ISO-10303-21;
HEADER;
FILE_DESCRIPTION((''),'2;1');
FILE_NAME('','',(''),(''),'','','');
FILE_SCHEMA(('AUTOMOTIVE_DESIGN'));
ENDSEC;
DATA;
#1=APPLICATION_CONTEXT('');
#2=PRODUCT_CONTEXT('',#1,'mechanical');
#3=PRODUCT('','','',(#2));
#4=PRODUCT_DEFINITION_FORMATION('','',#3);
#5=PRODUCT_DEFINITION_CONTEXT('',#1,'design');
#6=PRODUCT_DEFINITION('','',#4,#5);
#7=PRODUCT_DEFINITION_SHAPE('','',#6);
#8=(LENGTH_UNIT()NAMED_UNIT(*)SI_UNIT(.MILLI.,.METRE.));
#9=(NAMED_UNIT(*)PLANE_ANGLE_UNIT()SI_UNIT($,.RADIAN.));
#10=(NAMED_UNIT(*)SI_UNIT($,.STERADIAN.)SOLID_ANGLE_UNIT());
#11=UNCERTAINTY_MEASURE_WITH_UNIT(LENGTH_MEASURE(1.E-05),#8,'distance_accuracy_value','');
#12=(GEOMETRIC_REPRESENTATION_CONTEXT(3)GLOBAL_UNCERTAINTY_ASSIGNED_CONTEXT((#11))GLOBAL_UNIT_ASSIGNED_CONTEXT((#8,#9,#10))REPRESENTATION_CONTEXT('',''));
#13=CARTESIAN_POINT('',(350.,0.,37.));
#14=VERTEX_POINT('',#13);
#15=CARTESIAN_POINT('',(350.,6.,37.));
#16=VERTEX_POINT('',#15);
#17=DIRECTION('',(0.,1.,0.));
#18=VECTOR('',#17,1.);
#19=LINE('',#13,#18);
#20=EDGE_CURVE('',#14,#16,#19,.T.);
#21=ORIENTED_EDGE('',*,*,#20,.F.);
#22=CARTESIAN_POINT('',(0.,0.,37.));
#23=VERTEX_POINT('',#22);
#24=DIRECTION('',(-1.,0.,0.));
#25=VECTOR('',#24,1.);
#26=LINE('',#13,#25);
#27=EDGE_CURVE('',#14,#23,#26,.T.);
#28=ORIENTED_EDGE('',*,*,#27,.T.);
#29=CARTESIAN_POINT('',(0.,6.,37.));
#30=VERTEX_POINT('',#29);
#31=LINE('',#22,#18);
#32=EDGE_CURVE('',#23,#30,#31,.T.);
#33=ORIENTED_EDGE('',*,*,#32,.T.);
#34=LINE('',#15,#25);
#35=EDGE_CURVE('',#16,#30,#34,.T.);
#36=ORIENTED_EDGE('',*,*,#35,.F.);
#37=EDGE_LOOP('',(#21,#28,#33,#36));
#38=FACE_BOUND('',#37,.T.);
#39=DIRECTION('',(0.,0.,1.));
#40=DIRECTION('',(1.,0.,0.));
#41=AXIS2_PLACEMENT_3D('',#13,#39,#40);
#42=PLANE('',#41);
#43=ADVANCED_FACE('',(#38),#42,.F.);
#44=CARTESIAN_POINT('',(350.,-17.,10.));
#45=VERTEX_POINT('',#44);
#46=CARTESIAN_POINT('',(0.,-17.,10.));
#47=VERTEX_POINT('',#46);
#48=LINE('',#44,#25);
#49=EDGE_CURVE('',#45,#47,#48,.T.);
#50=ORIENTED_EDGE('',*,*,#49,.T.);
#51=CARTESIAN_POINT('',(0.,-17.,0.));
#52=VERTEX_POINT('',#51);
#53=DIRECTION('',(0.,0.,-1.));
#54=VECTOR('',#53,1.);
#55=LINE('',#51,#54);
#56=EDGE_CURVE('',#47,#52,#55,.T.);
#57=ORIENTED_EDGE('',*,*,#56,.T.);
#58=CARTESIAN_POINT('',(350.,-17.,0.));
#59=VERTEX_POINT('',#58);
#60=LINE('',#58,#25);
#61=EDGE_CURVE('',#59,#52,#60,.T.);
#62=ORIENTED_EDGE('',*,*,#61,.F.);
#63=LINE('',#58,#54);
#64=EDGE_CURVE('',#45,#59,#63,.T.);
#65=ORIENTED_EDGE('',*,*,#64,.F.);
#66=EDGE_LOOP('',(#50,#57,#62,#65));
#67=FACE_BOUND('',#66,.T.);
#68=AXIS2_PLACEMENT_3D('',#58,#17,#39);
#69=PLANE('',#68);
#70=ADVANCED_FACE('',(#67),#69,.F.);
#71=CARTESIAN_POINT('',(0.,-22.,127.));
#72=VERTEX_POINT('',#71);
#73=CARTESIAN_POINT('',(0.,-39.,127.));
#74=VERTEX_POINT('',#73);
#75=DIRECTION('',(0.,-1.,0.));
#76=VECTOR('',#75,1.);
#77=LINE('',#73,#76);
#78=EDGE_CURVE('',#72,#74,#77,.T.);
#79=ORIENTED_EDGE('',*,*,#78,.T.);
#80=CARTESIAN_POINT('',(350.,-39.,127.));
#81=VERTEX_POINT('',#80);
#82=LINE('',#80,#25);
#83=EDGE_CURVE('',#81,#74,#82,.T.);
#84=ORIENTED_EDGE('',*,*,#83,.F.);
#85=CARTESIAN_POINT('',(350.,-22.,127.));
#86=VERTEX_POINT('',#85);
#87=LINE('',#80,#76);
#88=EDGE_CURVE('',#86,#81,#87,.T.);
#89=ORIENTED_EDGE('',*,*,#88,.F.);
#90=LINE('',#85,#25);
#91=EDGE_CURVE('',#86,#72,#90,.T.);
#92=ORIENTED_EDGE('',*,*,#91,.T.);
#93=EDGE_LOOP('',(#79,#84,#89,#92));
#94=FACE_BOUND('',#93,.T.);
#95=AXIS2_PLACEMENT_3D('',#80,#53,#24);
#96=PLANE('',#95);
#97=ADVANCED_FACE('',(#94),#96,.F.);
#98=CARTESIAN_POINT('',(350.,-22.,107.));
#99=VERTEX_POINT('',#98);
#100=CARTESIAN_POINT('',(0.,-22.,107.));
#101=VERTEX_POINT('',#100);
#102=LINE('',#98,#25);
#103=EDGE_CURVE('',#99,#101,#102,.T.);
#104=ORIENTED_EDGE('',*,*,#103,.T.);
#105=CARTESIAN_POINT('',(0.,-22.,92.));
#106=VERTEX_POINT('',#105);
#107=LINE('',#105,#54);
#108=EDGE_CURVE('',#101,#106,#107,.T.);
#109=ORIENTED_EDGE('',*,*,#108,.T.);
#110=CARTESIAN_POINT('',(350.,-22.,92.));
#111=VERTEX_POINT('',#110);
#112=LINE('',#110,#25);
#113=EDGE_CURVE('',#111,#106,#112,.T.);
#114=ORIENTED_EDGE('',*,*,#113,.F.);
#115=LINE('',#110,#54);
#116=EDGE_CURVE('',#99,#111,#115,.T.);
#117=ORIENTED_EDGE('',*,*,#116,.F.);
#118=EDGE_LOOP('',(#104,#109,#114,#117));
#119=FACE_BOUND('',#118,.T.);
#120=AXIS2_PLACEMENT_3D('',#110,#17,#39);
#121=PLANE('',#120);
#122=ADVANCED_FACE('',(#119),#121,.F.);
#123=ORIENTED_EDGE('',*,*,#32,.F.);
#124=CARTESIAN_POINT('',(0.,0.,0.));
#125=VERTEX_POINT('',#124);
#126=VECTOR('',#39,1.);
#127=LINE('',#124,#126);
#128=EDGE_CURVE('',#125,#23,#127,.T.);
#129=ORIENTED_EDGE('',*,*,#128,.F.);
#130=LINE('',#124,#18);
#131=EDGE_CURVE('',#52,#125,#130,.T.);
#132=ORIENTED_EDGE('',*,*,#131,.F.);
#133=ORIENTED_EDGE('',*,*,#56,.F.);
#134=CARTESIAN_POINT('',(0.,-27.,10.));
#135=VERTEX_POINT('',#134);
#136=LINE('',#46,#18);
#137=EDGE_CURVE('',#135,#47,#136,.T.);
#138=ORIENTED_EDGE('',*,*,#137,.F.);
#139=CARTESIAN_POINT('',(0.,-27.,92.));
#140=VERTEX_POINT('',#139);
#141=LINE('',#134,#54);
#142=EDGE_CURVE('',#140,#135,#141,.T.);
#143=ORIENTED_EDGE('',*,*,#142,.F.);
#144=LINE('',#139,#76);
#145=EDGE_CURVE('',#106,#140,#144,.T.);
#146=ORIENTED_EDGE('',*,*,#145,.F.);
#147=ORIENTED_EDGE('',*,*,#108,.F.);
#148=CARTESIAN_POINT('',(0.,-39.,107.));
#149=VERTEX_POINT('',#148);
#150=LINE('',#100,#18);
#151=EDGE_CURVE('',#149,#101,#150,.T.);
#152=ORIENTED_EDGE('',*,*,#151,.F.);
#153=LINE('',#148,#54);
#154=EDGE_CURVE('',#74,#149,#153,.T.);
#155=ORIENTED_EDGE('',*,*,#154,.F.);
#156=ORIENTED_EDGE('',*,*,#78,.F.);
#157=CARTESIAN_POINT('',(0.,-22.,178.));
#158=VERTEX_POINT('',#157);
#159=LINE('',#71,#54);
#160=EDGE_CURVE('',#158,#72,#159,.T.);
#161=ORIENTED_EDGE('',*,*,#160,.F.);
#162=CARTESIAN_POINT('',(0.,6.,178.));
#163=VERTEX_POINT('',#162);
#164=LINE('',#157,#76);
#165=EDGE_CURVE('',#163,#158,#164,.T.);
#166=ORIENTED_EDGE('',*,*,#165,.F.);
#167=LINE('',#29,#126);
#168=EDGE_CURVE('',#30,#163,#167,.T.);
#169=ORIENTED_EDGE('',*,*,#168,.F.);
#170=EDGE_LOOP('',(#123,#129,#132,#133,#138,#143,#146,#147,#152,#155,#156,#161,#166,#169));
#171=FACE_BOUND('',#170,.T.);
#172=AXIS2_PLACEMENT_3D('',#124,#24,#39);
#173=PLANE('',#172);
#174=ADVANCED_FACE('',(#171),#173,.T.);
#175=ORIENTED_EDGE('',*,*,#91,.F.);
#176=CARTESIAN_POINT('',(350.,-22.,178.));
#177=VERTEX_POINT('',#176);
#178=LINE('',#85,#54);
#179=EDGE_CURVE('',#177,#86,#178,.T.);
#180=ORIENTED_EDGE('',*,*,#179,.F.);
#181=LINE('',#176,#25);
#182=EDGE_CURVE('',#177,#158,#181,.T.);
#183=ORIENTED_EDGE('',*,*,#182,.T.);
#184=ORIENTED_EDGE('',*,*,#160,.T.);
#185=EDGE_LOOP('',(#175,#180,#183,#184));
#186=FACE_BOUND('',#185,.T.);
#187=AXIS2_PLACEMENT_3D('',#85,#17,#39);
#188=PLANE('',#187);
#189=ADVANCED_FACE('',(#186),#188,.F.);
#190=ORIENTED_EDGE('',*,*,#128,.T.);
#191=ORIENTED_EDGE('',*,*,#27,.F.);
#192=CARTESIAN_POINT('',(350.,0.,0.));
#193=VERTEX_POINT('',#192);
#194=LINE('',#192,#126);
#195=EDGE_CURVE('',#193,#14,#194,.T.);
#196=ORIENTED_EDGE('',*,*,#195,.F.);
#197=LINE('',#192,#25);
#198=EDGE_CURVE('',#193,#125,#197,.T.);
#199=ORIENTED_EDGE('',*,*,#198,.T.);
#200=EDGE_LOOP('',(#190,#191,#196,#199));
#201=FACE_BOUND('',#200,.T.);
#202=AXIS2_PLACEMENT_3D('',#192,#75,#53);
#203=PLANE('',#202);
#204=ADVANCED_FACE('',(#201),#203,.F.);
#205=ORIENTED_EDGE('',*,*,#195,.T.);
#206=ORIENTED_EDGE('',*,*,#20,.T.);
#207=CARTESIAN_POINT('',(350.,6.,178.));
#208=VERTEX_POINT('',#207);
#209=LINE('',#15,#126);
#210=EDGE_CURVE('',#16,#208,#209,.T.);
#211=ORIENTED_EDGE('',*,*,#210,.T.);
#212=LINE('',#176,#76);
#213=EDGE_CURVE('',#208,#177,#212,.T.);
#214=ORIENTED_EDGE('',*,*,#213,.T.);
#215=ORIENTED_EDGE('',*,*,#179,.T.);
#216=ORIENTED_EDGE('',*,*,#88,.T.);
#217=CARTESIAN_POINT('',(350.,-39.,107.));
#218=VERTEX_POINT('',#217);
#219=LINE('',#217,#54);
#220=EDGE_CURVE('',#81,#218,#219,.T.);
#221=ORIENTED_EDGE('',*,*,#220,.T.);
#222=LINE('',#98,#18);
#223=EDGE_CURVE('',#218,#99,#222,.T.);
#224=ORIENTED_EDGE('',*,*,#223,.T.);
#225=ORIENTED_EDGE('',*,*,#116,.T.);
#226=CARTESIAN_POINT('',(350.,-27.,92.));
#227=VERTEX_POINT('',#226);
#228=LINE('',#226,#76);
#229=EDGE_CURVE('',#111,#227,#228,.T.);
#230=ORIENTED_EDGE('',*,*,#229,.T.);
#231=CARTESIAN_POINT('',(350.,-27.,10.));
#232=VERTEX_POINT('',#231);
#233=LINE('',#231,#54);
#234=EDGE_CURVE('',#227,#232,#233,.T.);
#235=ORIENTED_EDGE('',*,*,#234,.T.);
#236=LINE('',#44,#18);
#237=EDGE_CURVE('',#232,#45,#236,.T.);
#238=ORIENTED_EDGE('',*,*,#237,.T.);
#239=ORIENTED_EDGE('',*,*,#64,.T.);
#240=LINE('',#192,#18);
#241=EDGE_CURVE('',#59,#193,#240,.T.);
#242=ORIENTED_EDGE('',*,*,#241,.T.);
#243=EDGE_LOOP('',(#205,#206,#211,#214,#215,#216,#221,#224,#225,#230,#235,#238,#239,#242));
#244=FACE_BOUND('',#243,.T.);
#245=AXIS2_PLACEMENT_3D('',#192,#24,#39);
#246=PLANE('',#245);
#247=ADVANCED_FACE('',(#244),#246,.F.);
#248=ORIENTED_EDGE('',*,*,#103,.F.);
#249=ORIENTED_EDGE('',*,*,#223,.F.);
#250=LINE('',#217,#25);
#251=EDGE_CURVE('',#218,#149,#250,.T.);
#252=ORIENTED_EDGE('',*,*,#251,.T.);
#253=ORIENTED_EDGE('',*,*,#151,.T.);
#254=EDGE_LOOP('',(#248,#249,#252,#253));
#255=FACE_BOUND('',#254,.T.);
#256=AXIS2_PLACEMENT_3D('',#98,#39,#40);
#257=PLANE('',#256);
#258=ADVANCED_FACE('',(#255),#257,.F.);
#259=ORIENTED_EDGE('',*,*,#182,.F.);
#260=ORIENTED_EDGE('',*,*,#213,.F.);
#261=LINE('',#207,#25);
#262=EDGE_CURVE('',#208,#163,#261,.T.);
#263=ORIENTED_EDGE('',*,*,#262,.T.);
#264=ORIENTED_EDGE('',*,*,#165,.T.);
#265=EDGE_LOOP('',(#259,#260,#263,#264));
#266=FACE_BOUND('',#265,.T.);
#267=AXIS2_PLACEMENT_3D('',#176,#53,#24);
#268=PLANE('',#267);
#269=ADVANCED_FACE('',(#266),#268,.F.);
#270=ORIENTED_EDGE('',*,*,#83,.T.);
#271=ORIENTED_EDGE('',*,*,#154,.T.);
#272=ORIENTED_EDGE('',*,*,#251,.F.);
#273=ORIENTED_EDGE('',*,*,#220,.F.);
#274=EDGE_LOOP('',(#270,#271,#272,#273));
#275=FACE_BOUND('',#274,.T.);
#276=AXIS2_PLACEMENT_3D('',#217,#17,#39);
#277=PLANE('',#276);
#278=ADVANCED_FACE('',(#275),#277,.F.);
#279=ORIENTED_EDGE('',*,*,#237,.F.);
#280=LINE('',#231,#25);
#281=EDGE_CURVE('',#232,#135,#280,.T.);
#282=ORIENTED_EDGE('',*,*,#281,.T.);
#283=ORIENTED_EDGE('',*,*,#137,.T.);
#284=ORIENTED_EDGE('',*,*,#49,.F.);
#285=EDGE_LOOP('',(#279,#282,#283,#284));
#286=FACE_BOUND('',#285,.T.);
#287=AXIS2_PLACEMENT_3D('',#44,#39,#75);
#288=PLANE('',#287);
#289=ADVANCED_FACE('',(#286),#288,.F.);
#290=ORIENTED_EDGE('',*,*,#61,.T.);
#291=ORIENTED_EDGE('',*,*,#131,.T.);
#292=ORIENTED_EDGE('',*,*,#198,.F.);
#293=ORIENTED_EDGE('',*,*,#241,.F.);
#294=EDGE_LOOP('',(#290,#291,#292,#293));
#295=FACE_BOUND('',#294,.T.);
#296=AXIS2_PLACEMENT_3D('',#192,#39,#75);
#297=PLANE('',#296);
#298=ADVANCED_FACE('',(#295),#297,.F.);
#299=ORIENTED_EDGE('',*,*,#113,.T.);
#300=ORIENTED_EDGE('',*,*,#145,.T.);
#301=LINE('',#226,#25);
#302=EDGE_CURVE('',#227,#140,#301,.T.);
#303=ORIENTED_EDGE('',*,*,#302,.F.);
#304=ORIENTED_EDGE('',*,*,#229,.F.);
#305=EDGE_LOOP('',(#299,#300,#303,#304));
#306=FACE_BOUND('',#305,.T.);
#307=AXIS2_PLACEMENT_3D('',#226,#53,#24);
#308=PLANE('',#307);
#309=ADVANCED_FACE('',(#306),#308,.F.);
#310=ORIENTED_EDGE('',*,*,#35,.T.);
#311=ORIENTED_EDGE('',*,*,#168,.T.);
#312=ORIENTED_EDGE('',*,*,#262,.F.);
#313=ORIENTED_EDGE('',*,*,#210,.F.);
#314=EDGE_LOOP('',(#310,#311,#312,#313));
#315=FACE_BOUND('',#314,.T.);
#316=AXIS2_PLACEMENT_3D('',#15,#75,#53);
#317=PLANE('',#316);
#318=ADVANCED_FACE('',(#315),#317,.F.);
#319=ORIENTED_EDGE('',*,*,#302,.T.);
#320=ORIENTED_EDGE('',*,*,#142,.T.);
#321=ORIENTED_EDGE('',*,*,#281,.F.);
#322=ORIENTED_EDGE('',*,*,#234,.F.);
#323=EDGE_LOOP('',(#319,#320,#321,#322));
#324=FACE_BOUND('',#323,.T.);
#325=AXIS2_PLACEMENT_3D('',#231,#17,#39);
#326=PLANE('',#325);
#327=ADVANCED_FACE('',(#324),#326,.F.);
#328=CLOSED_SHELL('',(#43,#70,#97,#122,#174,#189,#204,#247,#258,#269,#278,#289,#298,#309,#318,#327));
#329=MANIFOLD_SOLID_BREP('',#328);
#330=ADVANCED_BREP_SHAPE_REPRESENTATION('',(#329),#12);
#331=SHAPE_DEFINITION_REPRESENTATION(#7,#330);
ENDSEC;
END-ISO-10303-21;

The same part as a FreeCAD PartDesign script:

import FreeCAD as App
import Part
import Sketcher
from FreeCAD import Vector
Q = App.Units.Quantity


def add_polygon(sketch, points):
    """Adds a closed chain of lines whose ends are joined by coincident constraints."""
    first, n = sketch.GeometryCount, len(points)
    for a, b in zip(points, points[1:] + points[:1]):
        sketch.addGeometry(Part.LineSegment(App.Vector(*a, 0), App.Vector(*b, 0)), False)
    for i in range(n):
        sketch.addConstraint(Sketcher.Constraint("Coincident", first + i, 2, first + (i + 1) % n, 1))

doc = App.newDocument("Part")
params = doc.addObject("Spreadsheet::Sheet", "Params")
for row, (alias, value) in enumerate([
    ("sketch1_width", "17 mm"),
    ("sketch1_width2", "6 mm"),
    ("sketch1_width3", "28 mm"),
    ("sketch1_width4", "5 mm"),
    ("sketch1_height", "37 mm"),
    ("pad1_length", "350 mm"),
], start=1):
    params.set(f"A{row}", alias)
    params.set(f"B{row}", "=" + value)
    params.setAlias(f"B{row}", alias)

body = doc.addObject("PartDesign::Body", "Body")

sketch1 = body.newObject("Sketcher::SketchObject", "Sketch")
sketch1.AttachmentSupport = (doc.getObject("YZ_Plane"), [""])
sketch1.MapMode = "FlatFace"
add_polygon(sketch1, [(-17, 0), (0, 0), (0, 37), (6, 37), (6, 178), (-22, 178), (-22, 127), (-39, 127), (-39, 107), (-22, 107), (-22, 92), (-27, 92), (-27, 10), (-17, 10)])
sketch1.addConstraint([
    Sketcher.Constraint("Horizontal", 0),
    Sketcher.Constraint("Vertical", 1),
    Sketcher.Constraint("Horizontal", 2),
    Sketcher.Constraint("Vertical", 3),
    Sketcher.Constraint("Horizontal", 4),
    Sketcher.Constraint("Vertical", 5),
    Sketcher.Constraint("Horizontal", 6),
    Sketcher.Constraint("Vertical", 7),
    Sketcher.Constraint("Horizontal", 8),
    Sketcher.Constraint("Vertical", 9),
    Sketcher.Constraint("Horizontal", 10),
    Sketcher.Constraint("Vertical", 11),
    Sketcher.Constraint("Horizontal", 12),
    Sketcher.Constraint("Vertical", 13),
    Sketcher.Constraint("Coincident", 0, 2, -1, 1),
    Sketcher.Constraint("Vertical", 5, 2, 8, 2),
    Sketcher.Constraint("Equal", 0, 6),
    Sketcher.Constraint("Equal", 12, 13),
    Sketcher.Constraint("DistanceX", 0, 1, 0, 2, Q("17 mm")),
    Sketcher.Constraint("DistanceX", 2, 1, 2, 2, Q("6 mm")),
    Sketcher.Constraint("DistanceX", 4, 2, 4, 1, Q("28 mm")),
    Sketcher.Constraint("DistanceX", 10, 2, 10, 1, Q("5 mm")),
    Sketcher.Constraint("DistanceY", 1, 1, 1, 2, Q("37 mm")),
    Sketcher.Constraint("DistanceY", 3, 1, 3, 2, Q("141 mm")),
    Sketcher.Constraint("DistanceY", 5, 2, 5, 1, Q("51 mm")),
    Sketcher.Constraint("DistanceY", 7, 2, 7, 1, Q("20 mm")),
    Sketcher.Constraint("DistanceY", 9, 2, 9, 1, Q("15 mm")),
])
sketch1.setExpression("Constraints[32]", "Params.sketch1_width")
sketch1.setExpression("Constraints[33]", "Params.sketch1_width2")
sketch1.setExpression("Constraints[34]", "Params.sketch1_width3")
sketch1.setExpression("Constraints[35]", "Params.sketch1_width4")
sketch1.setExpression("Constraints[36]", "Params.sketch1_height")
pad1 = body.newObject("PartDesign::Pad", "Pad")
pad1.Profile = sketch1
pad1.setExpression("Length", "Params.pad1_length")

doc.recompute()
